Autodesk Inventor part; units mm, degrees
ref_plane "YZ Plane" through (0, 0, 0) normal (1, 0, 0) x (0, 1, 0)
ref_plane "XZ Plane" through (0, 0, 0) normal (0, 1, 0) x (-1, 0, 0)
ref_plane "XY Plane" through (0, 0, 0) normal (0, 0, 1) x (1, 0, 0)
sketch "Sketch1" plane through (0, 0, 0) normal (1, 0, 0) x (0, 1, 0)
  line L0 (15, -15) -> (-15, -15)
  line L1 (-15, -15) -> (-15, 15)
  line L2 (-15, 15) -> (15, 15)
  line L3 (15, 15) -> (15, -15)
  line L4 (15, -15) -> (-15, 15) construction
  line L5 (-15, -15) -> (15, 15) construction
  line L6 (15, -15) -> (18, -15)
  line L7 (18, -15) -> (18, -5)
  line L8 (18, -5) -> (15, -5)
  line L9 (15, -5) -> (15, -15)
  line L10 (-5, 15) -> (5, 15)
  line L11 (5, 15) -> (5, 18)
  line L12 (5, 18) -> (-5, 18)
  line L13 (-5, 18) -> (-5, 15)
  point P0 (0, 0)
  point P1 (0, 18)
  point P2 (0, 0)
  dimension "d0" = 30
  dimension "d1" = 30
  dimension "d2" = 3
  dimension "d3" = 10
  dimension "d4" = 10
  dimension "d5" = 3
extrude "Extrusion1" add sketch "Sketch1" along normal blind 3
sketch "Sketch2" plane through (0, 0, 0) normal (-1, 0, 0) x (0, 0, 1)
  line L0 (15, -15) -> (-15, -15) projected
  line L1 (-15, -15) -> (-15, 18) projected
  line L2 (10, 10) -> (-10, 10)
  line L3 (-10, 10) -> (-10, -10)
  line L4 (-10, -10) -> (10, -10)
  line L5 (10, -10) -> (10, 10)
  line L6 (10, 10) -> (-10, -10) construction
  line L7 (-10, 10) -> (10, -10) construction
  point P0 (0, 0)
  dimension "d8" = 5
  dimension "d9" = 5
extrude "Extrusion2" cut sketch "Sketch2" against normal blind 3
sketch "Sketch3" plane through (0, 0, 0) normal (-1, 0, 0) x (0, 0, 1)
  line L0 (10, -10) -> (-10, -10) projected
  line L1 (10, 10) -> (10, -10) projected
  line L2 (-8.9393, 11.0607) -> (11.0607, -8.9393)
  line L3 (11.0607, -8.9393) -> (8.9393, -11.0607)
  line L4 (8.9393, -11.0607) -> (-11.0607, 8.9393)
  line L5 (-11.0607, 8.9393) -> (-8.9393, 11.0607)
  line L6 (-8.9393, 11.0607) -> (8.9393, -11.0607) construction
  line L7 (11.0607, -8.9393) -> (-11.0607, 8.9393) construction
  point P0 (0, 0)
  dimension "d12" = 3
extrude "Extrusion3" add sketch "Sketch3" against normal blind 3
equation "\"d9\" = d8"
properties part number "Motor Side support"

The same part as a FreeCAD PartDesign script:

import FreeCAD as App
import Part
import Sketcher

V = App.Vector
Q = App.Units.Quantity

doc = App.newDocument("Part")
body = doc.addObject("PartDesign::Body", "Body")

sketch1 = body.newObject("Sketcher::SketchObject", "Sketch")
sketch1.AttachmentSupport = (doc.getObject("YZ_Plane"), [""])
sketch1.MapMode = "FlatFace"
sketch1.addGeometry([
    Part.LineSegment(V(-15, -15, 0), V(18, -15, 0)),
    Part.LineSegment(V(18, -15, 0), V(18, -5, 0)),
    Part.LineSegment(V(18, -5, 0), V(15, -5, 0)),
    Part.LineSegment(V(15, -5, 0), V(15, 15, 0)),
    Part.LineSegment(V(15, 15, 0), V(5, 15, 0)),
    Part.LineSegment(V(5, 15, 0), V(5, 18, 0)),
    Part.LineSegment(V(5, 18, 0), V(-5, 18, 0)),
    Part.LineSegment(V(-5, 18, 0), V(-5, 15, 0)),
    Part.LineSegment(V(-5, 15, 0), V(-15, 15, 0)),
    Part.LineSegment(V(-15, 15, 0), V(-15, -15, 0)),
], False)
sketch1.addConstraint([
    Sketcher.Constraint("Coincident", 0, 2, 1, 1),
    Sketcher.Constraint("Coincident", 1, 2, 2, 1),
    Sketcher.Constraint("Coincident", 2, 2, 3, 1),
    Sketcher.Constraint("Coincident", 3, 2, 4, 1),
    Sketcher.Constraint("Coincident", 4, 2, 5, 1),
    Sketcher.Constraint("Coincident", 5, 2, 6, 1),
    Sketcher.Constraint("Coincident", 6, 2, 7, 1),
    Sketcher.Constraint("Coincident", 7, 2, 8, 1),
    Sketcher.Constraint("Coincident", 8, 2, 9, 1),
    Sketcher.Constraint("Coincident", 9, 2, 0, 1),
    Sketcher.Constraint("Horizontal", 0),
    Sketcher.Constraint("Vertical", 1),
    Sketcher.Constraint("Horizontal", 2),
    Sketcher.Constraint("Vertical", 3),
    Sketcher.Constraint("Horizontal", 4),
    Sketcher.Constraint("Vertical", 5),
    Sketcher.Constraint("Horizontal", 6),
    Sketcher.Constraint("Vertical", 7),
    Sketcher.Constraint("Horizontal", 8),
    Sketcher.Constraint("Vertical", 9),
    Sketcher.Constraint("Symmetric", 3, 2, 9, 2, -1, 1),
    Sketcher.Constraint("Symmetric", 4, 2, 7, 2, -2),
    Sketcher.Constraint("Equal", 4, 6),
    Sketcher.Constraint("Equal", 8, 1),
    Sketcher.Constraint("Equal", 2, 5),
    Sketcher.Constraint("DistanceX", 2, 2, 2, 1, 3.0),
    Sketcher.Constraint("DistanceX", 4, 2, 4, 1, 10.0),
    Sketcher.Constraint("DistanceY", 9, 2, 9, 1, 30.0),
])
pad1 = body.newObject("PartDesign::Pad", "Pad")
pad1.Profile = sketch1
pad1.Length = 3

sketch2 = body.newObject("Sketcher::SketchObject", "Sketch001")
sketch2.AttachmentSupport = (doc.getObject("YZ_Plane"), [""])
sketch2.MapMode = "FlatFace"
sketch2.addGeometry([
    Part.LineSegment(V(-10, 10, 0), V(10, 10, 0)),
    Part.LineSegment(V(10, 10, 0), V(10, -10, 0)),
    Part.LineSegment(V(10, -10, 0), V(-10, -10, 0)),
    Part.LineSegment(V(-10, -10, 0), V(-10, 10, 0)),
], False)
sketch2.addConstraint([
    Sketcher.Constraint("Coincident", 0, 2, 1, 1),
    Sketcher.Constraint("Coincident", 1, 2, 2, 1),
    Sketcher.Constraint("Coincident", 2, 2, 3, 1),
    Sketcher.Constraint("Coincident", 3, 2, 0, 1),
    Sketcher.Constraint("Horizontal", 0),
    Sketcher.Constraint("Vertical", 1),
    Sketcher.Constraint("Horizontal", 2),
    Sketcher.Constraint("Vertical", 3),
    Sketcher.Constraint("Symmetric", 0, 2, 2, 2, -1, 1),
    Sketcher.Constraint("Equal", 2, 1),
    Sketcher.Constraint("DistanceX", 0, 1, 0, 2, 20.0),
])
pocket1 = body.newObject("PartDesign::Pocket", "Pocket")
pocket1.Profile = sketch2
pocket1.Length = 3
pocket1.Reversed = True

sketch3 = body.newObject("Sketcher::SketchObject", "Sketch002")
sketch3.AttachmentSupport = (doc.getObject("YZ_Plane"), [""])
sketch3.MapMode = "FlatFace"
sketch3.addGeometry([
    Part.LineSegment(V(-11.1, 8.9, 0), V(-8.9, 11.1, 0)),
    Part.LineSegment(V(-8.9, 11.1, 0), V(11.1, -8.9, 0)),
    Part.LineSegment(V(11.1, -8.9, 0), V(8.9, -11.1, 0)),
    Part.LineSegment(V(8.9, -11.1, 0), V(-11.1, 8.9, 0)),
], False)
sketch3.addConstraint([
    Sketcher.Constraint("Coincident", 0, 2, 1, 1),
    Sketcher.Constraint("Coincident", 1, 2, 2, 1),
    Sketcher.Constraint("Coincident", 2, 2, 3, 1),
    Sketcher.Constraint("Coincident", 3, 2, 0, 1),
    Sketcher.Constraint("Symmetric", 0, 2, 2, 2, -1, 1),
    Sketcher.Constraint("Symmetric", 1, 2, 3, 2, -1, 1),
    Sketcher.Constraint("Perpendicular", 0, 1),
    Sketcher.Constraint("Distance", 0, 3.0),
    Sketcher.Constraint("Angle", 0, Q("45 deg")),
    Sketcher.Constraint("DistanceX", 0, 2, 1, 2, 20.0),
])
pad2 = body.newObject("PartDesign::Pad", "Pad001")
pad2.Profile = sketch3
pad2.Length = 3

doc.recompute()
